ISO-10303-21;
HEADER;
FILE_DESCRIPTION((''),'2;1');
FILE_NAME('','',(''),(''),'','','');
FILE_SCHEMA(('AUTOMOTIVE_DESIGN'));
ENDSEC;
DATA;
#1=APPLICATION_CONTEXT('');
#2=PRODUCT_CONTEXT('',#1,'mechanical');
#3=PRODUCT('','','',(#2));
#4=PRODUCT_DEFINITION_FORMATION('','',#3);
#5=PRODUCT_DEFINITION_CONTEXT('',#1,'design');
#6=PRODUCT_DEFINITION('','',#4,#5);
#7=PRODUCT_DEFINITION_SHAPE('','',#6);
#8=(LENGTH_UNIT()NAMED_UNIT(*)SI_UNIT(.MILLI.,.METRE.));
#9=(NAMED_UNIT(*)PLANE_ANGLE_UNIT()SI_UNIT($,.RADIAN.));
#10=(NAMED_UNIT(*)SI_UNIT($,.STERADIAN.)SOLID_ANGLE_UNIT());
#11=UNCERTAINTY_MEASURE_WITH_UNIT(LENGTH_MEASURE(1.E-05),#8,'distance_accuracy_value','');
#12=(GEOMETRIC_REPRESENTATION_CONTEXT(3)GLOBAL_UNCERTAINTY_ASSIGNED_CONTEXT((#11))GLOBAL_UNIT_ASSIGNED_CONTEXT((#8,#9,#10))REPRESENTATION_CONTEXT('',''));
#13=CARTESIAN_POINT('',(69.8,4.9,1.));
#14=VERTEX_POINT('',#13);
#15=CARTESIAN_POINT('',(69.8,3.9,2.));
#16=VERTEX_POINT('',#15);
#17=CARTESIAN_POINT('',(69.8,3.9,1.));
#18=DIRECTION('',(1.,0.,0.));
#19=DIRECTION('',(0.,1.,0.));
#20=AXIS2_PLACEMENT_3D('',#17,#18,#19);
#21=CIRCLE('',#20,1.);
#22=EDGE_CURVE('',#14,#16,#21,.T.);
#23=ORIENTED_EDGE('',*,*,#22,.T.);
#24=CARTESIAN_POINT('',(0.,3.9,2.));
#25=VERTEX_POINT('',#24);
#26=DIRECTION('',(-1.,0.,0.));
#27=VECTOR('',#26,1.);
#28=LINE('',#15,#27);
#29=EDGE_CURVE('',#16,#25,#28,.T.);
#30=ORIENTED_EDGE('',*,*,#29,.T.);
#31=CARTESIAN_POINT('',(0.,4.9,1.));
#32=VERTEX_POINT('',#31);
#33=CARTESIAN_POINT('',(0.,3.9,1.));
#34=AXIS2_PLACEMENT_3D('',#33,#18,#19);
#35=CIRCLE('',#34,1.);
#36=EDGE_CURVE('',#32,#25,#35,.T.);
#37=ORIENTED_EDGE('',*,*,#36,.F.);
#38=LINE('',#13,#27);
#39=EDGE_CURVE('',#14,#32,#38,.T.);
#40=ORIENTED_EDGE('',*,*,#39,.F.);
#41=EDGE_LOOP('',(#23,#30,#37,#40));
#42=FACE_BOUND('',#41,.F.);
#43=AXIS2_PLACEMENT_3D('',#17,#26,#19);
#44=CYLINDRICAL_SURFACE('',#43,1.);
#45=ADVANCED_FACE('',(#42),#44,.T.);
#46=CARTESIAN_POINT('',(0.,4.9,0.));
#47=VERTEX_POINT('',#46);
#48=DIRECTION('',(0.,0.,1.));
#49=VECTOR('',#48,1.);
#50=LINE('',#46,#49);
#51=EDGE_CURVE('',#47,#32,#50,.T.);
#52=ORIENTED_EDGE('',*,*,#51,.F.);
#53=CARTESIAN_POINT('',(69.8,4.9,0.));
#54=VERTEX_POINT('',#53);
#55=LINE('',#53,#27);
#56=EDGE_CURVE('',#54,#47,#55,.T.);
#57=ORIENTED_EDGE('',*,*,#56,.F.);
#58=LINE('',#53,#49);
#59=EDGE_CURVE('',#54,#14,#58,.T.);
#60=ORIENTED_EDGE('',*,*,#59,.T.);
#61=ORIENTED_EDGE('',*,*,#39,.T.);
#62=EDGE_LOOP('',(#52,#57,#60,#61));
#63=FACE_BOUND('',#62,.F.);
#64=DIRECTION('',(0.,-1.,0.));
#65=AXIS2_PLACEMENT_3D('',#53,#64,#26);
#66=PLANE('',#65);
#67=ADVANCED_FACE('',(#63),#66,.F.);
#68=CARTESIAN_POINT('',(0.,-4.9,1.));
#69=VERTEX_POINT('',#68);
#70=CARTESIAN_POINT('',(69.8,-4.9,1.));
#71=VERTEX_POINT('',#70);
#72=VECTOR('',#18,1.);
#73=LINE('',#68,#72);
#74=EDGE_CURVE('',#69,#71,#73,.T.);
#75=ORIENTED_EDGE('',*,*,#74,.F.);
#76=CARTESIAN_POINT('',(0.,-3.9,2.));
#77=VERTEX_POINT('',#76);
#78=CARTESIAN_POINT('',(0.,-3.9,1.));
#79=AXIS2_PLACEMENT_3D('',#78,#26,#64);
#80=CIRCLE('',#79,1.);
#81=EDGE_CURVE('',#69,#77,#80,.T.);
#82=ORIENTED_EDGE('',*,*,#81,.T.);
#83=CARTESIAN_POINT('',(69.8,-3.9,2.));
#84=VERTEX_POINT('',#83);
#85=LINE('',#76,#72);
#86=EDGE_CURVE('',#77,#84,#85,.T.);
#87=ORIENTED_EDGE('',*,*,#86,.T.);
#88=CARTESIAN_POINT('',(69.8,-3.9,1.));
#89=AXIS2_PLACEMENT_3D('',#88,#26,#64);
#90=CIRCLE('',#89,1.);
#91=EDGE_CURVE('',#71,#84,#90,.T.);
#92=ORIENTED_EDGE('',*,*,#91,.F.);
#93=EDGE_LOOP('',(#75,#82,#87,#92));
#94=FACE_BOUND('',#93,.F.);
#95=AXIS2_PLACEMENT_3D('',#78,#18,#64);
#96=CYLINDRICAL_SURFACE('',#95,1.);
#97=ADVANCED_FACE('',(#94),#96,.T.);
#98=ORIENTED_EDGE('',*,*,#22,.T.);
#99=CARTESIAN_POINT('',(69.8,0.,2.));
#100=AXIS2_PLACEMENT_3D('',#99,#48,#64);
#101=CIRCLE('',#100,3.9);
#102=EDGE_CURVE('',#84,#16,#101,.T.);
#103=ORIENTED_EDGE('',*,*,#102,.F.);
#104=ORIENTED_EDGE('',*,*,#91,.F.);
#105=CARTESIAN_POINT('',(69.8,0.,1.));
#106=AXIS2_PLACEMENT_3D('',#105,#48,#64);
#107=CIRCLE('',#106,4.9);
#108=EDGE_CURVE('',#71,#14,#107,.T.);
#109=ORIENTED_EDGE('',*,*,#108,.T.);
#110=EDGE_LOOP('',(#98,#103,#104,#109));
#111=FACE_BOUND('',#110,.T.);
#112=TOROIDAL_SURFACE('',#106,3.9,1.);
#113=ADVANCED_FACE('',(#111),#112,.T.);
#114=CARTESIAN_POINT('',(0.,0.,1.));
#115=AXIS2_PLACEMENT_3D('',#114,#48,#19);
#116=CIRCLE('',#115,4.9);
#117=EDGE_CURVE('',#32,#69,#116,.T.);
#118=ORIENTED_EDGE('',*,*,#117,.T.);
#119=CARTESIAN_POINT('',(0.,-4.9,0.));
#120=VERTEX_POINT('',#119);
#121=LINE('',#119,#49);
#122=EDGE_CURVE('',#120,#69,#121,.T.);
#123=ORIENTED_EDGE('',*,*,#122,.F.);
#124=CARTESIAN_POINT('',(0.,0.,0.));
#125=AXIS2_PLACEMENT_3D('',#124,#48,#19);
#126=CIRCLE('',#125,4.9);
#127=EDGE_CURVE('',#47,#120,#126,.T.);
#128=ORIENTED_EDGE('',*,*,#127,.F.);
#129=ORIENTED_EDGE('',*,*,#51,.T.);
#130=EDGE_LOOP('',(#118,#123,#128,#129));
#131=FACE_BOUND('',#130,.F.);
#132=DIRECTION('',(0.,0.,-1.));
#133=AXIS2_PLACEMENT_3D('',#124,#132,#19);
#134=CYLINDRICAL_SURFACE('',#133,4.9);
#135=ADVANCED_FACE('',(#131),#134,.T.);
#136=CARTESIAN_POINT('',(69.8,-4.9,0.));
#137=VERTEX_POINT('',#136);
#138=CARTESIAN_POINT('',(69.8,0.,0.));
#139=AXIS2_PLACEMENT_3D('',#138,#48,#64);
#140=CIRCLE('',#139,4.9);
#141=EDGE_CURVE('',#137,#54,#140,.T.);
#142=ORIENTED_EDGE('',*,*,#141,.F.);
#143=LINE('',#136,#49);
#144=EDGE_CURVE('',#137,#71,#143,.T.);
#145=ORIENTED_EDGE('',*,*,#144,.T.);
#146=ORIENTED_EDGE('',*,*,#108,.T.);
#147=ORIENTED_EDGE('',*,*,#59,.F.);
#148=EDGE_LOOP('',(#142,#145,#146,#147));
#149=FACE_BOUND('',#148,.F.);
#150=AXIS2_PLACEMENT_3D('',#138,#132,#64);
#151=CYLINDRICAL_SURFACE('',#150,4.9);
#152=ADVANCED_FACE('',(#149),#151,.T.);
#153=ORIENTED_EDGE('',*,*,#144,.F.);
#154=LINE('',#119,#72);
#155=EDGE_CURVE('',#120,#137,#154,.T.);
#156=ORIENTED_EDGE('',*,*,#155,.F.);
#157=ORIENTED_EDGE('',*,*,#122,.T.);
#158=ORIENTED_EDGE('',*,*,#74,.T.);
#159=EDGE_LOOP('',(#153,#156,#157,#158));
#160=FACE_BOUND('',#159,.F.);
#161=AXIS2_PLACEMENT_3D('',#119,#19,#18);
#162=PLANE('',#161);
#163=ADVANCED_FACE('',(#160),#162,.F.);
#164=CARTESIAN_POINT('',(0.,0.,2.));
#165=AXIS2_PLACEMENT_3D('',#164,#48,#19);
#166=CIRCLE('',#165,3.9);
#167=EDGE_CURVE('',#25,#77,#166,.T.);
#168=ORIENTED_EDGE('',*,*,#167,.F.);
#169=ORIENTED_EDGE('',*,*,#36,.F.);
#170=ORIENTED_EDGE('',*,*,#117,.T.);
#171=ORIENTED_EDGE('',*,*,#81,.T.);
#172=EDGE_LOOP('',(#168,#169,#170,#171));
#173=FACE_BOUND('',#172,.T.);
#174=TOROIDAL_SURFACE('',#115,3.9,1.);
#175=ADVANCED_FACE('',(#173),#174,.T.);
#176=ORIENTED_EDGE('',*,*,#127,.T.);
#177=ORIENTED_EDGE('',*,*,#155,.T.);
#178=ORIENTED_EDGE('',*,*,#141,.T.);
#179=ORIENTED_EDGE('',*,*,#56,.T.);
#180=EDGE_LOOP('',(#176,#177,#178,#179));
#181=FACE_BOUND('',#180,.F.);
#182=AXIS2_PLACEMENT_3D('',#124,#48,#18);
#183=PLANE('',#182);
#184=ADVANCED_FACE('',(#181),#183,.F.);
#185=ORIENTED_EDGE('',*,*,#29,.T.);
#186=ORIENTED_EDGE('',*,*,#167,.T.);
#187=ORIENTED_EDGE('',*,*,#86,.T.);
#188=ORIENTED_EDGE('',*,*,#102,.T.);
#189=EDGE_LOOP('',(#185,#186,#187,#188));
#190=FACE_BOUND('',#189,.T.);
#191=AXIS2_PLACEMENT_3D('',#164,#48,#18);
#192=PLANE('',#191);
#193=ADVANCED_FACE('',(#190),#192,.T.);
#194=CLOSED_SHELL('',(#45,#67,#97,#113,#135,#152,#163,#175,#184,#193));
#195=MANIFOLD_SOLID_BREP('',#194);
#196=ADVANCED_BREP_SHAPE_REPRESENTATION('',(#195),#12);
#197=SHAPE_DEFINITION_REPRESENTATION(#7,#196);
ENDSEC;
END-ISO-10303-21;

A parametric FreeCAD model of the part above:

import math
import FreeCAD as App
import Part
import Sketcher
from FreeCAD import Vector


def edges_at(feature, points):
    """Names of the edges that pass closest to the given points."""
    edges = feature.Shape.Edges
    near = lambda p: min(range(len(edges)), key=lambda i: edges[i].distToShape(Part.Vertex(*p))[0])
    return sorted({f"Edge{near(p) + 1}" for p in points})

doc = App.newDocument("Part")
body = doc.addObject("PartDesign::Body", "Body")

sketch1 = body.newObject("Sketcher::SketchObject", "Sketch")
sketch1.AttachmentSupport = (doc.getObject("XY_Plane"), [""])
sketch1.MapMode = "FlatFace"
sketch1.addGeometry(Part.ArcOfCircle(Part.Circle(Vector(0, 0, 0), Vector(0, 0, 1), 4.9), math.radians(90), math.radians(270)), False)
sketch1.addGeometry(Part.LineSegment(Vector(0, -4.9, 0), Vector(69.8, -4.9, 0)), False)
sketch1.addGeometry(Part.ArcOfCircle(Part.Circle(Vector(69.8, 0, 0), Vector(0, 0, 1), 4.9), math.radians(-90), math.radians(90)), False)
sketch1.addGeometry(Part.LineSegment(Vector(69.8, 4.9, 0), Vector(0, 4.9, 0)), False)
sketch1.addConstraint(Sketcher.Constraint("Tangent", 0, 2, 1, 1))
sketch1.addConstraint(Sketcher.Constraint("Tangent", 1, 2, 2, 1))
sketch1.addConstraint(Sketcher.Constraint("Tangent", 2, 2, 3, 1))
sketch1.addConstraint(Sketcher.Constraint("Tangent", 3, 2, 0, 1))
sketch1.addConstraint(Sketcher.Constraint("Horizontal", 1))
sketch1.addConstraint(Sketcher.Constraint("Horizontal", 3))
sketch1.addConstraint(Sketcher.Constraint("Coincident", 0, 3, -1, 1))
sketch1.addConstraint(Sketcher.Constraint("Radius", 0, 4.9))
sketch1.addConstraint(Sketcher.Constraint("DistanceX", 1, 1, 1, 2, 69.8))
pad1 = body.newObject("PartDesign::Pad", "Pad")
pad1.Profile = sketch1
pad1.Length = 2
doc.recompute()

fillet = body.newObject("PartDesign::Fillet", "Fillet")
fillet.Base = (pad1, edges_at(pad1, [
    (-4.9, 0, 2),
    (34.9, -4.9, 2),
    (74.7, 0, 2),
    (34.9, 4.9, 2),
]))
fillet.Radius = 1

doc.recompute()
